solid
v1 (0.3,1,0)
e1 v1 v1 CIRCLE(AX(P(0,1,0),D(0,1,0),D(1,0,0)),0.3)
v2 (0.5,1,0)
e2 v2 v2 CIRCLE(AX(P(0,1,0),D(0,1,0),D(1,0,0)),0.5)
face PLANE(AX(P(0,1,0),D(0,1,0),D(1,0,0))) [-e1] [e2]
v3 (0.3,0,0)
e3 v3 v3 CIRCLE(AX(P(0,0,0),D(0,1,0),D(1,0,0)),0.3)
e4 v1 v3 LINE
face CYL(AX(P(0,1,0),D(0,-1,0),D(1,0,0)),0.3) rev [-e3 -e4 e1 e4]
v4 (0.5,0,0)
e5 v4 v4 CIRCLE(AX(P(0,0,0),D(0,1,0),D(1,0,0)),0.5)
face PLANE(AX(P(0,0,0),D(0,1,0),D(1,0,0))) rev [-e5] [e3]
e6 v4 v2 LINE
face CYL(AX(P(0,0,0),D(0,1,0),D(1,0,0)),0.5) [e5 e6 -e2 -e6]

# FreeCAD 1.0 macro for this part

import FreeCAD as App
import Part
import Sketcher
from FreeCAD import Vector
Q = App.Units.Quantity


def add_polygon(sketch, points):
    """Adds a closed chain of lines whose ends are joined by coincident constraints."""
    first, n = sketch.GeometryCount, len(points)
    for a, b in zip(points, points[1:] + points[:1]):
        sketch.addGeometry(Part.LineSegment(App.Vector(*a, 0), App.Vector(*b, 0)), False)
    for i in range(n):
        sketch.addConstraint(Sketcher.Constraint("Coincident", first + i, 2, first + (i + 1) % n, 1))

doc = App.newDocument("Part")
body = doc.addObject("PartDesign::Body", "Body")

# Sketch on XY plane
sketch1 = body.newObject("Sketcher::SketchObject", "Sketch")
sketch1.AttachmentSupport = (doc.getObject("XY_Plane"), [""])
sketch1.MapMode = "FlatFace"
add_polygon(sketch1, [(0.3, 1), (0.3, 0), (0.5, 0), (0.5, 1)])  # lines 0-3
sketch1.addConstraint([
    Sketcher.Constraint("Vertical", 0),
    Sketcher.Constraint("Horizontal", 1),
    Sketcher.Constraint("Vertical", 2),
    Sketcher.Constraint("Horizontal", 3),
    Sketcher.Constraint("PointOnObject", 0, 2, -1),
    Sketcher.Constraint("DistanceY", 0, 2, 0, 1, Q("1 mm")),
    Sketcher.Constraint("DistanceX", -1, 1, 0, 2, Q("0.3 mm")),
    Sketcher.Constraint("DistanceX", -1, 1, 1, 2, Q("0.5 mm")),
])
revolution = body.newObject("PartDesign::Revolution", "Revolution")
revolution.Profile = sketch1
revolution.ReferenceAxis = (sketch1, ["V_Axis"])
revolution.Angle = 360

doc.recompute()
